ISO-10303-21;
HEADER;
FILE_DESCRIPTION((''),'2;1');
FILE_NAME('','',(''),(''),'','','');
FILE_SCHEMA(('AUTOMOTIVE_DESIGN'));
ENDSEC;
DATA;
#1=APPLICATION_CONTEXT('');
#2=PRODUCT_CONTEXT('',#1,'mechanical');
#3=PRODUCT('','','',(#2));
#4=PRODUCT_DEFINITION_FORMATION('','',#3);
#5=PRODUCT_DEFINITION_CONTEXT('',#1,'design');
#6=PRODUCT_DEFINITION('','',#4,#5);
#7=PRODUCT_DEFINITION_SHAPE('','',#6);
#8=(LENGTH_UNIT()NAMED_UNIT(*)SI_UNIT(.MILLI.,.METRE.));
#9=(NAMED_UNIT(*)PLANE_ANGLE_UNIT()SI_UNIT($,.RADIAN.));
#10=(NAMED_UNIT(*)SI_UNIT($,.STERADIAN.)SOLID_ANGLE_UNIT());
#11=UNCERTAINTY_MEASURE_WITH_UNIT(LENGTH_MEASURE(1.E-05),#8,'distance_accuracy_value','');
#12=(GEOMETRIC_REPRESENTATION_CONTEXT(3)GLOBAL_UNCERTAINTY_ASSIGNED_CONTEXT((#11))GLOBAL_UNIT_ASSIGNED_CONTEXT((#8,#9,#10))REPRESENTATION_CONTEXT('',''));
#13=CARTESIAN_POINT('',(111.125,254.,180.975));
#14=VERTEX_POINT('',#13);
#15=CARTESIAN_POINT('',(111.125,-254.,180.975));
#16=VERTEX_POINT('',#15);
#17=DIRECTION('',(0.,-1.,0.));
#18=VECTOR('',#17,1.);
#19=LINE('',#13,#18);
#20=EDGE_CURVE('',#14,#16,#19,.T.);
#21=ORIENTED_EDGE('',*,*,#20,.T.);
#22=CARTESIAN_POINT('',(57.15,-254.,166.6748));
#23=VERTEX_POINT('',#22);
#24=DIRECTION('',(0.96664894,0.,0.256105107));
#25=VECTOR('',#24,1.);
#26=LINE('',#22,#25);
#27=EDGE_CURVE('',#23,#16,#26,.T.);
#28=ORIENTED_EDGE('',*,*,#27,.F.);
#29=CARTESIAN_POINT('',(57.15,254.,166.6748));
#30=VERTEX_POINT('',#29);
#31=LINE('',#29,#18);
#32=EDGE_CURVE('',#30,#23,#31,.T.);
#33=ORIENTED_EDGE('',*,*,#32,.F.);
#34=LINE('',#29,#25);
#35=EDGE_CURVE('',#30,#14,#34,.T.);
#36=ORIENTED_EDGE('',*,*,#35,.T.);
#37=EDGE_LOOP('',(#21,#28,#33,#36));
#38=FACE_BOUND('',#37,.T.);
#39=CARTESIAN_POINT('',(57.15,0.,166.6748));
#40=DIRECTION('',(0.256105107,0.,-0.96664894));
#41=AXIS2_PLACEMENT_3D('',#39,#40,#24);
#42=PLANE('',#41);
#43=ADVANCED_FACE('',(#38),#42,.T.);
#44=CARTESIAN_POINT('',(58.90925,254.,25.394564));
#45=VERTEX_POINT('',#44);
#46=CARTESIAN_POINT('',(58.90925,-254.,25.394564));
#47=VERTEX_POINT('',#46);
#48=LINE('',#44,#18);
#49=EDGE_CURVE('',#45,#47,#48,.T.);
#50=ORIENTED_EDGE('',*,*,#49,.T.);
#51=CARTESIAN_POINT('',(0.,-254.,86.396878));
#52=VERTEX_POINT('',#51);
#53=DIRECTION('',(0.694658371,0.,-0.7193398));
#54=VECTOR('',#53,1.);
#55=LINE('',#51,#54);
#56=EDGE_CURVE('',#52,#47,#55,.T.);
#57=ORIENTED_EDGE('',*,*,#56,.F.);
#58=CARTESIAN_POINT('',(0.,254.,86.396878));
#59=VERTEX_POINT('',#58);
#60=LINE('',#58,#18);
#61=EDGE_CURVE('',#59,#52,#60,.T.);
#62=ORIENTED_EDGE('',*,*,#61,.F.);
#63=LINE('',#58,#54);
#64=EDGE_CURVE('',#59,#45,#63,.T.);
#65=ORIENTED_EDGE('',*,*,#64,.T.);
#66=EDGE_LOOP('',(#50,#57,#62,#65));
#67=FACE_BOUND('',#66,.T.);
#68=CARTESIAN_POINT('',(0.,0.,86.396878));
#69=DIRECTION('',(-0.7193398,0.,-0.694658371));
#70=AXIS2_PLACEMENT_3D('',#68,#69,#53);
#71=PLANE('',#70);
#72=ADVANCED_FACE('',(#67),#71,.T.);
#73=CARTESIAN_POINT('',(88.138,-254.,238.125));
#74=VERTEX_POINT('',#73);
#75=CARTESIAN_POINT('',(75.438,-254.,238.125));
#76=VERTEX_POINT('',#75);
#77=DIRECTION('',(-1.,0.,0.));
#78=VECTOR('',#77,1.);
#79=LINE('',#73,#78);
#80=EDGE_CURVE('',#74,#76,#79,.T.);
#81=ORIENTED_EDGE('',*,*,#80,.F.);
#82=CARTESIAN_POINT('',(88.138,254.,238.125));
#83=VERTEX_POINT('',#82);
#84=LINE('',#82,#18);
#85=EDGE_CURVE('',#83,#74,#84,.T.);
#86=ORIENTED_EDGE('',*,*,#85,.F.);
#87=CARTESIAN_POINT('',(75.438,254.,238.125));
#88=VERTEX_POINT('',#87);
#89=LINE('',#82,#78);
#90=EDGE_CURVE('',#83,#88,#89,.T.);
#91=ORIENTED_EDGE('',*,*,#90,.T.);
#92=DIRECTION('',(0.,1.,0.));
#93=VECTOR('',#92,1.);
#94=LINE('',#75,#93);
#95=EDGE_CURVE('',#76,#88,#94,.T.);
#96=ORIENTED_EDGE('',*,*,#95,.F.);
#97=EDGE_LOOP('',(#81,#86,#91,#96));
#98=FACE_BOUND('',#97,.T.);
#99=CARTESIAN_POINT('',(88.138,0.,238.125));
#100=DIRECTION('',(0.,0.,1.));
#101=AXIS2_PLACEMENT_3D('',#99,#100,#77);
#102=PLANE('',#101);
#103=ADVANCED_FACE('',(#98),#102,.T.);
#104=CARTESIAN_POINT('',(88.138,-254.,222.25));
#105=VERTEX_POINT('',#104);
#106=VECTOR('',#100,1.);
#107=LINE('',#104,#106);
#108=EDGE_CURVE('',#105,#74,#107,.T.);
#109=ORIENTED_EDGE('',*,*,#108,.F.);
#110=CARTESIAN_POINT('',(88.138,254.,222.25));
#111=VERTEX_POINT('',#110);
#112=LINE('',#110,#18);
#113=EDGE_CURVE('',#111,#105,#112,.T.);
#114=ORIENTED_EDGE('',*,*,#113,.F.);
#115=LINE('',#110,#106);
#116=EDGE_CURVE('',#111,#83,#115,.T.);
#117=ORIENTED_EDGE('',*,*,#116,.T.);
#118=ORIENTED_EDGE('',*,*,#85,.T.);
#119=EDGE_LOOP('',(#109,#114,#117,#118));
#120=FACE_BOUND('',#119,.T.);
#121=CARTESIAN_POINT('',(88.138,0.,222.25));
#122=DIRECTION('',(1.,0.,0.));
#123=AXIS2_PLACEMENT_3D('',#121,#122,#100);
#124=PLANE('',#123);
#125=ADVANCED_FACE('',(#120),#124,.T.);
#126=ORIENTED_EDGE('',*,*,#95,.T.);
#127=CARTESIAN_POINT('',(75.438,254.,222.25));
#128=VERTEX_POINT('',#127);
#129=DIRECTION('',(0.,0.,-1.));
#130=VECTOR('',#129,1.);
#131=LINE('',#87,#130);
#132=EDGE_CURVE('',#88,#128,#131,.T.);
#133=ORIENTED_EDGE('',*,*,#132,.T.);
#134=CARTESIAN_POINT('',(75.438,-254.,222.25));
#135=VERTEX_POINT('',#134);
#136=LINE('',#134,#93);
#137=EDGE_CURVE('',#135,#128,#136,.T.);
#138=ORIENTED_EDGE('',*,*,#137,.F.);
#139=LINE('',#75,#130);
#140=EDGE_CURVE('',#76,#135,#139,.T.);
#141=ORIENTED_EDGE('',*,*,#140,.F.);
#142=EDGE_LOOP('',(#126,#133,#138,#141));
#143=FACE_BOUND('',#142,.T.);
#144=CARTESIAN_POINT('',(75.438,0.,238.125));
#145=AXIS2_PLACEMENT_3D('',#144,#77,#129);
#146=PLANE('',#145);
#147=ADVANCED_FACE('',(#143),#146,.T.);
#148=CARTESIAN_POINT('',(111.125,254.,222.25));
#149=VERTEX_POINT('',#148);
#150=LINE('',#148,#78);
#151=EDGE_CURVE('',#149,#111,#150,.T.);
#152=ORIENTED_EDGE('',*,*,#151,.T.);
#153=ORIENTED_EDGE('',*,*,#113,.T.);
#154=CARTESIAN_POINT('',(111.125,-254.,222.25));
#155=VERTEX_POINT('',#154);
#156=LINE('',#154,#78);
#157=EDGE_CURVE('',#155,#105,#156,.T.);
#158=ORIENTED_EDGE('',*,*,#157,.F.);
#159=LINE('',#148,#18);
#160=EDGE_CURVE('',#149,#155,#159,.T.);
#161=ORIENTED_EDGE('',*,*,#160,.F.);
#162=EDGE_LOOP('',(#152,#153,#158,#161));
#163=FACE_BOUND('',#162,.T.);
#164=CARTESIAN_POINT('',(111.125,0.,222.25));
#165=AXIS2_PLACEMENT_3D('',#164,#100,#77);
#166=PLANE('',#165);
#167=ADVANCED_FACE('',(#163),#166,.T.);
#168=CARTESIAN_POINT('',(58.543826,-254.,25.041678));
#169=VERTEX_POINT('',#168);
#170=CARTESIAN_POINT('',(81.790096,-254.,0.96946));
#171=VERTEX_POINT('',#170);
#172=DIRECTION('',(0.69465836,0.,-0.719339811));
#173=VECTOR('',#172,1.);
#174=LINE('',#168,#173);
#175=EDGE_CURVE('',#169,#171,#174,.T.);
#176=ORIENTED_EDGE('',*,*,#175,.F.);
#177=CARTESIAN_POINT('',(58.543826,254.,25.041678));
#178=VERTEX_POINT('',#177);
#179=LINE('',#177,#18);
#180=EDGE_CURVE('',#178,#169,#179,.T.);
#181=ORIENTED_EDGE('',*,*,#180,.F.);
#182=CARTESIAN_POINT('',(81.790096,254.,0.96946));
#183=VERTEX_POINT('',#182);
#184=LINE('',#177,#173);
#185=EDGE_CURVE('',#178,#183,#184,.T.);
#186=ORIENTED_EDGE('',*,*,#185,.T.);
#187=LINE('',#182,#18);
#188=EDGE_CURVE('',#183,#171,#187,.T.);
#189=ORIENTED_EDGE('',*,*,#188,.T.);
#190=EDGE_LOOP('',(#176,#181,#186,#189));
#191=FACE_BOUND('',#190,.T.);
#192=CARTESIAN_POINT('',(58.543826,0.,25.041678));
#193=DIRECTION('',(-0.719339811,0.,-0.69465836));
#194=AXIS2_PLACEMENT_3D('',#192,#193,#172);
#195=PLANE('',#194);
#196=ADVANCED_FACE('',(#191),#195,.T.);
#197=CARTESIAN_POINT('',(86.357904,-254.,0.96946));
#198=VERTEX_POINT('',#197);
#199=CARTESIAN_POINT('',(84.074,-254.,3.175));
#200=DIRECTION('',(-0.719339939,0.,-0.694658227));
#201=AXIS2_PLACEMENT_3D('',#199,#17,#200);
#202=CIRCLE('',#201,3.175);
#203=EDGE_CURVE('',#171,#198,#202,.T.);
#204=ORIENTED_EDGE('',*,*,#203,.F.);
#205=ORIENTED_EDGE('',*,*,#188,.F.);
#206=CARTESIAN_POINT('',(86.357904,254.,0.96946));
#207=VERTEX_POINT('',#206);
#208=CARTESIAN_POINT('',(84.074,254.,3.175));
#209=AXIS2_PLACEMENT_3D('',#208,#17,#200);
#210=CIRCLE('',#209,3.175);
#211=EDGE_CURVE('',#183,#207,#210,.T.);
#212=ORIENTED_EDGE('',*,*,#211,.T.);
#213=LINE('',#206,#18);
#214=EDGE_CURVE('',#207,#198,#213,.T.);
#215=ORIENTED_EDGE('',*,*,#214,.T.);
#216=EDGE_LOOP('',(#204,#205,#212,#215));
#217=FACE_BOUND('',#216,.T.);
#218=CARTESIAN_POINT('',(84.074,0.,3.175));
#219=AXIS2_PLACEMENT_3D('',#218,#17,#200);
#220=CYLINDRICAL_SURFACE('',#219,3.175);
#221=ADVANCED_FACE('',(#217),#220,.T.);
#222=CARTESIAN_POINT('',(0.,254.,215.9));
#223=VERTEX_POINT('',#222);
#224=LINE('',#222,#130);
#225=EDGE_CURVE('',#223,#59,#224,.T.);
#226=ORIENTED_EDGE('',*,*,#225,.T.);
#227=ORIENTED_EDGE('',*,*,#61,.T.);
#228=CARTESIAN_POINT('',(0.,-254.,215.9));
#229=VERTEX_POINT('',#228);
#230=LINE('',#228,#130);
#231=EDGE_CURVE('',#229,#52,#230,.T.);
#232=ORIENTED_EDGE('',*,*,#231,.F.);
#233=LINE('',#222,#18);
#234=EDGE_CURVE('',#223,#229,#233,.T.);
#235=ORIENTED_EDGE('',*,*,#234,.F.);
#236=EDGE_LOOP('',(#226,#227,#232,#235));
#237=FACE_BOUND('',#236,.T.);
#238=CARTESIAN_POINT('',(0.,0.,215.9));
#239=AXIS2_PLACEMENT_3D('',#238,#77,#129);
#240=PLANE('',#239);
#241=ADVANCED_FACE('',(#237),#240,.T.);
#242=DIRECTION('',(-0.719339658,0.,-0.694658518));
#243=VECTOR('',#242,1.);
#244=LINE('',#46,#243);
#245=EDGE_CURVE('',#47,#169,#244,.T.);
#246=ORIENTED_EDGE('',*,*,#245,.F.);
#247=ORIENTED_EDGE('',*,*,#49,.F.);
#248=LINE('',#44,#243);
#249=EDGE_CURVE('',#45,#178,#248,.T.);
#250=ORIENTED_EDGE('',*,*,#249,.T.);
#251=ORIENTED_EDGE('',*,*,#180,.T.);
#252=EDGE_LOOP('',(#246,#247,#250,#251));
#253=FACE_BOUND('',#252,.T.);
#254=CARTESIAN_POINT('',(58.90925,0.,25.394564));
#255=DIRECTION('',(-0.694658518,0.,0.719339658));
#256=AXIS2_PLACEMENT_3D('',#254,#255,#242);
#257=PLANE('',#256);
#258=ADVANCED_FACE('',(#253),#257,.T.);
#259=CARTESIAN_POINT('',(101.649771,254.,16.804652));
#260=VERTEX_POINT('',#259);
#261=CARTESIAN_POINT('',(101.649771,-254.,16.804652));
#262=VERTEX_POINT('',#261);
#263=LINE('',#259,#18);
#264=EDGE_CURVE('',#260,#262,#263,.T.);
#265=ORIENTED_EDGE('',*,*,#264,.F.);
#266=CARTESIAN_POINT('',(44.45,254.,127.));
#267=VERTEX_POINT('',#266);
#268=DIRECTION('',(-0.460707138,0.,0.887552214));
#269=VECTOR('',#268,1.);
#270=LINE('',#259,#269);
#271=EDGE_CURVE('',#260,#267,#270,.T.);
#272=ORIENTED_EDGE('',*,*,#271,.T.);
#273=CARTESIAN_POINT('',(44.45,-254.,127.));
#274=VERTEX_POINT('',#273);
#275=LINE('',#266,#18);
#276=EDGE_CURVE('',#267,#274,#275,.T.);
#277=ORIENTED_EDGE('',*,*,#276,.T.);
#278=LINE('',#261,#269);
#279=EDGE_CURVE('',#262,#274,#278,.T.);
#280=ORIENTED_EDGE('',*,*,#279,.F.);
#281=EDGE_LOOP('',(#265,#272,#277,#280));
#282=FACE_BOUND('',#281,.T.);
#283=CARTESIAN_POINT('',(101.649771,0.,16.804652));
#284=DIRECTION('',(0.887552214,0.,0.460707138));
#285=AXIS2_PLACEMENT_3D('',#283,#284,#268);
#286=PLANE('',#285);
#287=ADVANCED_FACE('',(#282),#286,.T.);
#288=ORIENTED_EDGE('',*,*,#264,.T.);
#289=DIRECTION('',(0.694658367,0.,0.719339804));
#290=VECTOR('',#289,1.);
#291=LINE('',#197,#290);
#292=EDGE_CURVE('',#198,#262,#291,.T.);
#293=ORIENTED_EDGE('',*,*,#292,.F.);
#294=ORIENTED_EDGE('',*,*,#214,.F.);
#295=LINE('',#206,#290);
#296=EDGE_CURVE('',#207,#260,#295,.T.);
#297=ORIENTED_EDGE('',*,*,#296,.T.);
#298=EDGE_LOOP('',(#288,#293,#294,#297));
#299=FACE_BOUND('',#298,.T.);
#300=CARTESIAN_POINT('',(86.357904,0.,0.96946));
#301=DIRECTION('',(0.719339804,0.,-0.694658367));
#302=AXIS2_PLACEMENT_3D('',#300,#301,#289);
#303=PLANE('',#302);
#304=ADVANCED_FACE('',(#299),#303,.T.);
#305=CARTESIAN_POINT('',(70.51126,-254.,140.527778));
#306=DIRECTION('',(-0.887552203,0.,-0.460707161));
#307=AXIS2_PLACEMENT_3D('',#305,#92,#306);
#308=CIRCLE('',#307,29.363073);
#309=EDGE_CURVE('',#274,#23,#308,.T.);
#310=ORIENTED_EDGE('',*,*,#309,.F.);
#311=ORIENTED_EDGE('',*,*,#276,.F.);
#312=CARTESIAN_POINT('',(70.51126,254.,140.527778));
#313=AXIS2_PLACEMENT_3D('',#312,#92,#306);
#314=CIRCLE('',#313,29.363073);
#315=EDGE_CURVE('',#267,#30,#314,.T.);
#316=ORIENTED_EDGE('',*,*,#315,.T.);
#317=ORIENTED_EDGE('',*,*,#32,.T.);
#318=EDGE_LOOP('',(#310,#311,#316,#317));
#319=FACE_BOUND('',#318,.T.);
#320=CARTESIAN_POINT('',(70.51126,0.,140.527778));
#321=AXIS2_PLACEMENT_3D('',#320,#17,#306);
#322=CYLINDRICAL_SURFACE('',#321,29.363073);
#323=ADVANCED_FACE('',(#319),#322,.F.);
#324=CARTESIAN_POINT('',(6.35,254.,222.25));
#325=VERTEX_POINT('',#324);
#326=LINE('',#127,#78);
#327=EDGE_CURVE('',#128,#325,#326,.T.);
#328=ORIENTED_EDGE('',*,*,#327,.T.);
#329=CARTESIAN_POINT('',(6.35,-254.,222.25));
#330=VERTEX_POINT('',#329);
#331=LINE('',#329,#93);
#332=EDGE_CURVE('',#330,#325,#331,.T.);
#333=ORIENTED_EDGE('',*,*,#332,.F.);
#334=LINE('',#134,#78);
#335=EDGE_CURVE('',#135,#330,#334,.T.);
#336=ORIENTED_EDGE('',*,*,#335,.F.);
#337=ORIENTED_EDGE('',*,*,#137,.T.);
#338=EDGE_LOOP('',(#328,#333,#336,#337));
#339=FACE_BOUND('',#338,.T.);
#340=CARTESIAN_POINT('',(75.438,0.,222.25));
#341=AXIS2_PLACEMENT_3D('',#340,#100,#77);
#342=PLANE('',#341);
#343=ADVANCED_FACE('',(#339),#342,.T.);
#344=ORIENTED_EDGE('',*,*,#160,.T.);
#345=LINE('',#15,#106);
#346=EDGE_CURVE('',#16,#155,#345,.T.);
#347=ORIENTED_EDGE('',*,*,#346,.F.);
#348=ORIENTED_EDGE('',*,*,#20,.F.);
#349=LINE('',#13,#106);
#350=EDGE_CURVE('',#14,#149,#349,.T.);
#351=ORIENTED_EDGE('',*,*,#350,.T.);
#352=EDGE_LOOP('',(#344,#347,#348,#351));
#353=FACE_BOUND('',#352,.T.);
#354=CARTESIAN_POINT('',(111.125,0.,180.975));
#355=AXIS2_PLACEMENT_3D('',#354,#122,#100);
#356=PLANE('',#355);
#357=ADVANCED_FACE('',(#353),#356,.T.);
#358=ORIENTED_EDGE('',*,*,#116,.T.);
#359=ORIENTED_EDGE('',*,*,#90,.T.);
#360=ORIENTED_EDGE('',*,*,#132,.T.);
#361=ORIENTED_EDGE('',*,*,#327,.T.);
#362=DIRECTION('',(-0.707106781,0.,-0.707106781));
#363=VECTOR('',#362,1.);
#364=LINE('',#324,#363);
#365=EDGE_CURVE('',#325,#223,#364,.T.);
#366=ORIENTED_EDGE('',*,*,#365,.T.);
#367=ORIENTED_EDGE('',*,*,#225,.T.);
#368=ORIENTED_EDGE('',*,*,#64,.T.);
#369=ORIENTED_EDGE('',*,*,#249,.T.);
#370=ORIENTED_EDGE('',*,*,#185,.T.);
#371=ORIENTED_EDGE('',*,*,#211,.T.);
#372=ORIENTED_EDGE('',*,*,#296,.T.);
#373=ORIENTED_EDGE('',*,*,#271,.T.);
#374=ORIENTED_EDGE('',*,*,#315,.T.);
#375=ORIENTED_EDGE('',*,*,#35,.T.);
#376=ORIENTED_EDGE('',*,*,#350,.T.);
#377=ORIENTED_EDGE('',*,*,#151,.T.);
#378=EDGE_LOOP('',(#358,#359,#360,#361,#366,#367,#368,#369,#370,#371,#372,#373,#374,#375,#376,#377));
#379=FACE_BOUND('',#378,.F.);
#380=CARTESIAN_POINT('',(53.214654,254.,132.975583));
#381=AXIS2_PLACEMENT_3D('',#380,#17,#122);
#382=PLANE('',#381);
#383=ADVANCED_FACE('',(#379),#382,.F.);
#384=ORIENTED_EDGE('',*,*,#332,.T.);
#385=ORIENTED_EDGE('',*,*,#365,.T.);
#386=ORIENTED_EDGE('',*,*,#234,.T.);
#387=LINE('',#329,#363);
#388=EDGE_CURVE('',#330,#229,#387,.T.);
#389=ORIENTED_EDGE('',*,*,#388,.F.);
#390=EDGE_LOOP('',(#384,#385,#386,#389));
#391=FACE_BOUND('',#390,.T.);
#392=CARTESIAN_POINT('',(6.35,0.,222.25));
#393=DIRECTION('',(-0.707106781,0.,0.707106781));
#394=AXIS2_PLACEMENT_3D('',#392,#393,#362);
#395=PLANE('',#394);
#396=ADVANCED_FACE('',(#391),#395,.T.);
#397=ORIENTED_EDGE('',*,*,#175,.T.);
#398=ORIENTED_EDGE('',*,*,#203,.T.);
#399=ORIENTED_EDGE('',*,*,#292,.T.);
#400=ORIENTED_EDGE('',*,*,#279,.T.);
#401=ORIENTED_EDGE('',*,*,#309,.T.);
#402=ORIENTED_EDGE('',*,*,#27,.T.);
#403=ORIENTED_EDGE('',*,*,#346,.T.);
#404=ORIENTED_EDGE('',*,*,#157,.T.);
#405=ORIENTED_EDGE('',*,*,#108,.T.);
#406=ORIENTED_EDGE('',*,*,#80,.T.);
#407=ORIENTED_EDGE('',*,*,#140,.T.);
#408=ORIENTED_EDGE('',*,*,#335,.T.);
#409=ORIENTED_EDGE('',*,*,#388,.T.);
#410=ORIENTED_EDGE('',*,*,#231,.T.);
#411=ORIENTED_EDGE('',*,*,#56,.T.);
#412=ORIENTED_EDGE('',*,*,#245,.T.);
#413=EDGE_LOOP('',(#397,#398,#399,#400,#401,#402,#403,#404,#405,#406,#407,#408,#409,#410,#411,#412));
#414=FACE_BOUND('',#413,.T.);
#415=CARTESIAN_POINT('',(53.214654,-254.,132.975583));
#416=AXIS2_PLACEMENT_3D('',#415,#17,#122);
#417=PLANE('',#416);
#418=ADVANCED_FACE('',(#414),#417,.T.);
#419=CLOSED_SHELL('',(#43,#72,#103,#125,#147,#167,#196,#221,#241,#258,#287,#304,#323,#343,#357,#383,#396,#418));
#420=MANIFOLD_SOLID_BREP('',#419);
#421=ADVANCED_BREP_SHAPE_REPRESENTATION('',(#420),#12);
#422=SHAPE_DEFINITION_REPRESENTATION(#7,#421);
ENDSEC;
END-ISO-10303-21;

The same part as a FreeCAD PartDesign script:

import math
import FreeCAD as App
import Part
import Sketcher
Q = App.Units.Quantity

doc = App.newDocument("Part")
body = doc.addObject("PartDesign::Body", "Body")

# Sketch on XZ plane
sketch1 = body.newObject("Sketcher::SketchObject", "Sketch")
sketch1.AttachmentSupport = (doc.getObject("XZ_Plane"), [""])
sketch1.MapMode = "FlatFace"
sketch1.addGeometry(Part.LineSegment(App.Vector(6.35, 222.25, 0), App.Vector(0, 215.9, 0)), False)
sketch1.addGeometry(Part.LineSegment(App.Vector(0, 215.9, 0), App.Vector(0, 86.396878, 0)), False)
sketch1.addGeometry(Part.LineSegment(App.Vector(0, 86.396878, 0), App.Vector(58.90925, 25.394564, 0)), False)
sketch1.addGeometry(Part.LineSegment(App.Vector(58.90925, 25.394564, 0), App.Vector(58.543826, 25.041678, 0)), False)
sketch1.addGeometry(Part.LineSegment(App.Vector(58.543826, 25.041678, 0), App.Vector(81.790096, 0.96946, 0)), False)
sketch1.addGeometry(Part.ArcOfCircle(Part.Circle(App.Vector(84.074, 3.175, 0), App.Vector(0, 0, 1), 3.175), math.radians(-136.000011), math.radians(-43.999989)), False)
sketch1.addGeometry(Part.LineSegment(App.Vector(86.357904, 0.96946, 0), App.Vector(101.649771, 16.804652, 0)), False)
sketch1.addGeometry(Part.LineSegment(App.Vector(101.649771, 16.804652, 0), App.Vector(44.45, 127, 0)), False)
sketch1.addGeometry(Part.ArcOfCircle(Part.Circle(App.Vector(70.51126, 140.527778, 0), App.Vector(0, 0, 1), 29.363073), math.radians(117.067261), math.radians(207.432749)), False)
sketch1.addGeometry(Part.LineSegment(App.Vector(57.15, 166.6748, 0), App.Vector(111.125, 180.975, 0)), False)
sketch1.addGeometry(Part.LineSegment(App.Vector(111.125, 180.975, 0), App.Vector(111.125, 222.25, 0)), False)
sketch1.addGeometry(Part.LineSegment(App.Vector(111.125, 222.25, 0), App.Vector(88.138, 222.25, 0)), False)
sketch1.addGeometry(Part.LineSegment(App.Vector(88.138, 222.25, 0), App.Vector(88.138, 238.125, 0)), False)
sketch1.addGeometry(Part.LineSegment(App.Vector(88.138, 238.125, 0), App.Vector(75.438, 238.125, 0)), False)
sketch1.addGeometry(Part.LineSegment(App.Vector(75.438, 238.125, 0), App.Vector(75.438, 222.25, 0)), False)
sketch1.addGeometry(Part.LineSegment(App.Vector(75.438, 222.25, 0), App.Vector(6.35, 222.25, 0)), False)
sketch1.addConstraint(Sketcher.Constraint("Coincident", 0, 2, 1, 1))
sketch1.addConstraint(Sketcher.Constraint("Coincident", 1, 2, 2, 1))
sketch1.addConstraint(Sketcher.Constraint("Coincident", 2, 2, 3, 1))
sketch1.addConstraint(Sketcher.Constraint("Coincident", 3, 2, 4, 1))
sketch1.addConstraint(Sketcher.Constraint("Tangent", 4, 2, 5, 1))
sketch1.addConstraint(Sketcher.Constraint("Tangent", 5, 2, 6, 1))
sketch1.addConstraint(Sketcher.Constraint("Coincident", 6, 2, 7, 1))
sketch1.addConstraint(Sketcher.Constraint("Tangent", 7, 2, 8, 2))
sketch1.addConstraint(Sketcher.Constraint("Coincident", 8, 1, 9, 1))
sketch1.addConstraint(Sketcher.Constraint("Coincident", 9, 2, 10, 1))
sketch1.addConstraint(Sketcher.Constraint("Coincident", 10, 2, 11, 1))
sketch1.addConstraint(Sketcher.Constraint("Coincident", 11, 2, 12, 1))
sketch1.addConstraint(Sketcher.Constraint("Coincident", 12, 2, 13, 1))
sketch1.addConstraint(Sketcher.Constraint("Coincident", 13, 2, 14, 1))
sketch1.addConstraint(Sketcher.Constraint("Coincident", 14, 2, 15, 1))
sketch1.addConstraint(Sketcher.Constraint("Coincident", 15, 2, 0, 1))
sketch1.addConstraint(Sketcher.Constraint("Vertical", 1))
sketch1.addConstraint(Sketcher.Constraint("Vertical", 10))
sketch1.addConstraint(Sketcher.Constraint("Horizontal", 11))
sketch1.addConstraint(Sketcher.Constraint("Vertical", 12))
sketch1.addConstraint(Sketcher.Constraint("Horizontal", 13))
sketch1.addConstraint(Sketcher.Constraint("Vertical", 14))
sketch1.addConstraint(Sketcher.Constraint("Horizontal", 15))
sketch1.addConstraint(Sketcher.Constraint("PointOnObject", 0, 2, -2))
sketch1.addConstraint(Sketcher.Constraint("Perpendicular", 2, 3))
sketch1.addConstraint(Sketcher.Constraint("Perpendicular", 3, 4))
sketch1.addConstraint(Sketcher.Constraint("Horizontal", 4, 2, 5, 2))
sketch1.addConstraint(Sketcher.Constraint("Horizontal", 11, 2, 14, 2))
sketch1.addConstraint(Sketcher.Constraint("DistanceX", 13, 2, 13, 1, Q("0.5 in")))
sketch1.addConstraint(Sketcher.Constraint("DistanceY", -1, 1, 7, 2, Q("5 in")))
sketch1.addConstraint(Sketcher.Constraint("Angle", 0, Q("-135 deg")))
sketch1.addConstraint(Sketcher.Constraint("Angle", 2, Q("-46 deg")))
sketch1.addConstraint(Sketcher.Constraint("Radius", 5, Q("0.125 in")))
sketch1.addConstraint(Sketcher.Constraint("DistanceX", 15, 2, 8, 1, Q("2 in")))
sketch1.addConstraint(Sketcher.Constraint("DistanceX", 15, 2, 15, 1, Q("2.72 in")))
sketch1.addConstraint(Sketcher.Constraint("DistanceY", -1, 1, 0, 2, Q("8.5 in")))
sketch1.addConstraint(Sketcher.Constraint("DistanceX", 7, 2, 8, 1, Q("0.5 in")))
sketch1.addConstraint(Sketcher.Constraint("Distance", 3, Q("0.02 in")))
sketch1.addConstraint(Sketcher.Constraint("DistanceX", 11, 2, 11, 1, Q("0.905 in")))
sketch1.addConstraint(Sketcher.Constraint("DistanceY", 10, 1, 10, 2, Q("1.625 in")))
sketch1.addConstraint(Sketcher.Constraint("DistanceY", 12, 1, 12, 2, Q("0.625 in")))
sketch1.addConstraint(Sketcher.Constraint("DistanceX", -1, 1, 5, 3, Q("3.31 in")))
sketch1.addConstraint(Sketcher.Constraint("DistanceX", -1, 1, 7, 2, Q("1.75 in")))
sketch1.addConstraint(Sketcher.Constraint("DistanceY", -1, 1, 5, 3, Q("0.125 in")))
sketch1.addConstraint(Sketcher.Constraint("DistanceY", -1, 1, 8, 1, Q("6.562 in")))
sketch1.addConstraint(Sketcher.Constraint("Radius", 8, Q("29.363073 mm")))
sketch1.addConstraint(Sketcher.Constraint("DistanceY", 3, 2, 1, 2, Q("61.3552 mm")))
pad1 = body.newObject("PartDesign::Pad", "Pad")
pad1.Profile = sketch1
pad1.Type = "TwoLengths"
pad1.Length = Q("10 in")
pad1.Length2 = Q("10 in")

doc.recompute()
